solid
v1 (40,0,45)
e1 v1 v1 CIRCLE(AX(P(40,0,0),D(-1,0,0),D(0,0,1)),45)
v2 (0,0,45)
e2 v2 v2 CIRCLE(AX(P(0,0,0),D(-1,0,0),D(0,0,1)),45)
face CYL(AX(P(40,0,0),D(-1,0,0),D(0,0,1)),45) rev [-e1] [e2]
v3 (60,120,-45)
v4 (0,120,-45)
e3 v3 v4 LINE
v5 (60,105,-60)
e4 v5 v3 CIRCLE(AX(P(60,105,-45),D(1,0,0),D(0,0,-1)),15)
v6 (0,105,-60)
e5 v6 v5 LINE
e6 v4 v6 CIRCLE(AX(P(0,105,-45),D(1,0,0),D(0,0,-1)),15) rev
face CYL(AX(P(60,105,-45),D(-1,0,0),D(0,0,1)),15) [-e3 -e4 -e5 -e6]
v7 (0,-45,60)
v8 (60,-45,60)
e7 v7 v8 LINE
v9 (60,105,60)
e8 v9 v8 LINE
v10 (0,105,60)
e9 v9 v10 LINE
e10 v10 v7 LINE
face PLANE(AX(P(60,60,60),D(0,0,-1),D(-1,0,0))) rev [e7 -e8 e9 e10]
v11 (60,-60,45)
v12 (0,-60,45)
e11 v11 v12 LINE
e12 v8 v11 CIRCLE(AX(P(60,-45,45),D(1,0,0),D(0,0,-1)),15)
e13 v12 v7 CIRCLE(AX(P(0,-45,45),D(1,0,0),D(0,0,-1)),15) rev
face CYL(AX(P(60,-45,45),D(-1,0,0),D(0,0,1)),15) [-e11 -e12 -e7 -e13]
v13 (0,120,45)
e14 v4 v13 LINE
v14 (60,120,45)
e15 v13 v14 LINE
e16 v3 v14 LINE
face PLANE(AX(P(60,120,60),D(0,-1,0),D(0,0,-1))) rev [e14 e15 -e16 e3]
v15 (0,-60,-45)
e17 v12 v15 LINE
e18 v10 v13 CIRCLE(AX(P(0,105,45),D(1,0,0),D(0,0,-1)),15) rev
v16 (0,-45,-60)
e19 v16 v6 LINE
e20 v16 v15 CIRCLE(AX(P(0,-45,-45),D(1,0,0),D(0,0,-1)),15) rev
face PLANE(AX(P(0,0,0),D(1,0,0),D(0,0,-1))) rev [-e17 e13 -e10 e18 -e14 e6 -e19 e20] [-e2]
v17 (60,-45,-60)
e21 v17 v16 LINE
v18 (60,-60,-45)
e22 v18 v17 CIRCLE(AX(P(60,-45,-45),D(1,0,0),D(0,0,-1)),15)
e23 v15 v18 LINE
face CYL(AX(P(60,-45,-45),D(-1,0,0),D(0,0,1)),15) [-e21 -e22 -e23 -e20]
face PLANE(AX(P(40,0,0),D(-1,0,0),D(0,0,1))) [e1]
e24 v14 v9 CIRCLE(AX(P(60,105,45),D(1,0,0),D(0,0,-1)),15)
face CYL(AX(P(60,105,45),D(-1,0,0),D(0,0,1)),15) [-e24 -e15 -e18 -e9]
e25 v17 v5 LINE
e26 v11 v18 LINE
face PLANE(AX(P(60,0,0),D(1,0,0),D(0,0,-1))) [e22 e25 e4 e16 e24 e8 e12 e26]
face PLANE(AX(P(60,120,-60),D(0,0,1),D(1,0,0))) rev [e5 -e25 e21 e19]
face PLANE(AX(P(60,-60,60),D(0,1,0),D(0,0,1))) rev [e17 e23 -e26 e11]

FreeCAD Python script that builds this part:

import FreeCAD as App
import Part
import Sketcher
Q = App.Units.Quantity


def edges_at(feature, points):
    """Names of the edges that pass closest to the given points."""
    edges = feature.Shape.Edges
    near = lambda p: min(range(len(edges)), key=lambda i: edges[i].distToShape(Part.Vertex(*p))[0])
    return sorted({f"Edge{near(p) + 1}" for p in points})


def add_polygon(sketch, points):
    """Adds a closed chain of lines whose ends are joined by coincident constraints."""
    first, n = sketch.GeometryCount, len(points)
    for a, b in zip(points, points[1:] + points[:1]):
        sketch.addGeometry(Part.LineSegment(App.Vector(*a, 0), App.Vector(*b, 0)), False)
    for i in range(n):
        sketch.addConstraint(Sketcher.Constraint("Coincident", first + i, 2, first + (i + 1) % n, 1))

doc = App.newDocument("Part")
body = doc.addObject("PartDesign::Body", "Body")

sketch1 = body.newObject("Sketcher::SketchObject", "Sketch")
sketch1.AttachmentSupport = (doc.getObject("YZ_Plane"), [""])
sketch1.MapMode = "FlatFace"
add_polygon(sketch1, [(120, 60), (-60, 60), (-60, -60), (120, -60)])
sketch1.addConstraint(Sketcher.Constraint("Horizontal", 0))
sketch1.addConstraint(Sketcher.Constraint("Vertical", 1))
sketch1.addConstraint(Sketcher.Constraint("Horizontal", 2))
sketch1.addConstraint(Sketcher.Constraint("Vertical", 3))
sketch1.addConstraint(Sketcher.Constraint("DistanceX", 0, 2, 0, 1, Q("180 mm")))
sketch1.addConstraint(Sketcher.Constraint("DistanceY", 1, 2, 1, 1, Q("120 mm")))
sketch1.addConstraint(Sketcher.Constraint("DistanceX", 0, 2, -1, 1, Q("60 mm")))
sketch1.addConstraint(Sketcher.Constraint("DistanceY", -1, 1, 0, 2, Q("60 mm")))
pad1 = body.newObject("PartDesign::Pad", "Pad")
pad1.Profile = sketch1
pad1.Length = 60

sketch2 = body.newObject("Sketcher::SketchObject", "Sketch001")
sketch2.AttachmentSupport = (doc.getObject("YZ_Plane"), [""])
sketch2.MapMode = "FlatFace"
sketch2.addGeometry(Part.Circle(App.Vector(0, 0, 0), App.Vector(0, 0, 1), 45), False)
sketch2.addConstraint(Sketcher.Constraint("Coincident", 0, 3, -1, 1))
sketch2.addConstraint(Sketcher.Constraint("Diameter", 0, Q("90 mm")))
pocket1 = body.newObject("PartDesign::Pocket", "Pocket")
pocket1.Profile = sketch2
pocket1.Length = 40
pocket1.Reversed = True
doc.recompute()

fillet = body.newObject("PartDesign::Fillet", "Fillet")
fillet.Base = (pocket1, edges_at(pocket1, [
    (30, 120, 60),
    (30, 120, -60),
    (30, -60, -60),
    (30, -60, 60),
]))
fillet.Radius = 15

doc.recompute()
